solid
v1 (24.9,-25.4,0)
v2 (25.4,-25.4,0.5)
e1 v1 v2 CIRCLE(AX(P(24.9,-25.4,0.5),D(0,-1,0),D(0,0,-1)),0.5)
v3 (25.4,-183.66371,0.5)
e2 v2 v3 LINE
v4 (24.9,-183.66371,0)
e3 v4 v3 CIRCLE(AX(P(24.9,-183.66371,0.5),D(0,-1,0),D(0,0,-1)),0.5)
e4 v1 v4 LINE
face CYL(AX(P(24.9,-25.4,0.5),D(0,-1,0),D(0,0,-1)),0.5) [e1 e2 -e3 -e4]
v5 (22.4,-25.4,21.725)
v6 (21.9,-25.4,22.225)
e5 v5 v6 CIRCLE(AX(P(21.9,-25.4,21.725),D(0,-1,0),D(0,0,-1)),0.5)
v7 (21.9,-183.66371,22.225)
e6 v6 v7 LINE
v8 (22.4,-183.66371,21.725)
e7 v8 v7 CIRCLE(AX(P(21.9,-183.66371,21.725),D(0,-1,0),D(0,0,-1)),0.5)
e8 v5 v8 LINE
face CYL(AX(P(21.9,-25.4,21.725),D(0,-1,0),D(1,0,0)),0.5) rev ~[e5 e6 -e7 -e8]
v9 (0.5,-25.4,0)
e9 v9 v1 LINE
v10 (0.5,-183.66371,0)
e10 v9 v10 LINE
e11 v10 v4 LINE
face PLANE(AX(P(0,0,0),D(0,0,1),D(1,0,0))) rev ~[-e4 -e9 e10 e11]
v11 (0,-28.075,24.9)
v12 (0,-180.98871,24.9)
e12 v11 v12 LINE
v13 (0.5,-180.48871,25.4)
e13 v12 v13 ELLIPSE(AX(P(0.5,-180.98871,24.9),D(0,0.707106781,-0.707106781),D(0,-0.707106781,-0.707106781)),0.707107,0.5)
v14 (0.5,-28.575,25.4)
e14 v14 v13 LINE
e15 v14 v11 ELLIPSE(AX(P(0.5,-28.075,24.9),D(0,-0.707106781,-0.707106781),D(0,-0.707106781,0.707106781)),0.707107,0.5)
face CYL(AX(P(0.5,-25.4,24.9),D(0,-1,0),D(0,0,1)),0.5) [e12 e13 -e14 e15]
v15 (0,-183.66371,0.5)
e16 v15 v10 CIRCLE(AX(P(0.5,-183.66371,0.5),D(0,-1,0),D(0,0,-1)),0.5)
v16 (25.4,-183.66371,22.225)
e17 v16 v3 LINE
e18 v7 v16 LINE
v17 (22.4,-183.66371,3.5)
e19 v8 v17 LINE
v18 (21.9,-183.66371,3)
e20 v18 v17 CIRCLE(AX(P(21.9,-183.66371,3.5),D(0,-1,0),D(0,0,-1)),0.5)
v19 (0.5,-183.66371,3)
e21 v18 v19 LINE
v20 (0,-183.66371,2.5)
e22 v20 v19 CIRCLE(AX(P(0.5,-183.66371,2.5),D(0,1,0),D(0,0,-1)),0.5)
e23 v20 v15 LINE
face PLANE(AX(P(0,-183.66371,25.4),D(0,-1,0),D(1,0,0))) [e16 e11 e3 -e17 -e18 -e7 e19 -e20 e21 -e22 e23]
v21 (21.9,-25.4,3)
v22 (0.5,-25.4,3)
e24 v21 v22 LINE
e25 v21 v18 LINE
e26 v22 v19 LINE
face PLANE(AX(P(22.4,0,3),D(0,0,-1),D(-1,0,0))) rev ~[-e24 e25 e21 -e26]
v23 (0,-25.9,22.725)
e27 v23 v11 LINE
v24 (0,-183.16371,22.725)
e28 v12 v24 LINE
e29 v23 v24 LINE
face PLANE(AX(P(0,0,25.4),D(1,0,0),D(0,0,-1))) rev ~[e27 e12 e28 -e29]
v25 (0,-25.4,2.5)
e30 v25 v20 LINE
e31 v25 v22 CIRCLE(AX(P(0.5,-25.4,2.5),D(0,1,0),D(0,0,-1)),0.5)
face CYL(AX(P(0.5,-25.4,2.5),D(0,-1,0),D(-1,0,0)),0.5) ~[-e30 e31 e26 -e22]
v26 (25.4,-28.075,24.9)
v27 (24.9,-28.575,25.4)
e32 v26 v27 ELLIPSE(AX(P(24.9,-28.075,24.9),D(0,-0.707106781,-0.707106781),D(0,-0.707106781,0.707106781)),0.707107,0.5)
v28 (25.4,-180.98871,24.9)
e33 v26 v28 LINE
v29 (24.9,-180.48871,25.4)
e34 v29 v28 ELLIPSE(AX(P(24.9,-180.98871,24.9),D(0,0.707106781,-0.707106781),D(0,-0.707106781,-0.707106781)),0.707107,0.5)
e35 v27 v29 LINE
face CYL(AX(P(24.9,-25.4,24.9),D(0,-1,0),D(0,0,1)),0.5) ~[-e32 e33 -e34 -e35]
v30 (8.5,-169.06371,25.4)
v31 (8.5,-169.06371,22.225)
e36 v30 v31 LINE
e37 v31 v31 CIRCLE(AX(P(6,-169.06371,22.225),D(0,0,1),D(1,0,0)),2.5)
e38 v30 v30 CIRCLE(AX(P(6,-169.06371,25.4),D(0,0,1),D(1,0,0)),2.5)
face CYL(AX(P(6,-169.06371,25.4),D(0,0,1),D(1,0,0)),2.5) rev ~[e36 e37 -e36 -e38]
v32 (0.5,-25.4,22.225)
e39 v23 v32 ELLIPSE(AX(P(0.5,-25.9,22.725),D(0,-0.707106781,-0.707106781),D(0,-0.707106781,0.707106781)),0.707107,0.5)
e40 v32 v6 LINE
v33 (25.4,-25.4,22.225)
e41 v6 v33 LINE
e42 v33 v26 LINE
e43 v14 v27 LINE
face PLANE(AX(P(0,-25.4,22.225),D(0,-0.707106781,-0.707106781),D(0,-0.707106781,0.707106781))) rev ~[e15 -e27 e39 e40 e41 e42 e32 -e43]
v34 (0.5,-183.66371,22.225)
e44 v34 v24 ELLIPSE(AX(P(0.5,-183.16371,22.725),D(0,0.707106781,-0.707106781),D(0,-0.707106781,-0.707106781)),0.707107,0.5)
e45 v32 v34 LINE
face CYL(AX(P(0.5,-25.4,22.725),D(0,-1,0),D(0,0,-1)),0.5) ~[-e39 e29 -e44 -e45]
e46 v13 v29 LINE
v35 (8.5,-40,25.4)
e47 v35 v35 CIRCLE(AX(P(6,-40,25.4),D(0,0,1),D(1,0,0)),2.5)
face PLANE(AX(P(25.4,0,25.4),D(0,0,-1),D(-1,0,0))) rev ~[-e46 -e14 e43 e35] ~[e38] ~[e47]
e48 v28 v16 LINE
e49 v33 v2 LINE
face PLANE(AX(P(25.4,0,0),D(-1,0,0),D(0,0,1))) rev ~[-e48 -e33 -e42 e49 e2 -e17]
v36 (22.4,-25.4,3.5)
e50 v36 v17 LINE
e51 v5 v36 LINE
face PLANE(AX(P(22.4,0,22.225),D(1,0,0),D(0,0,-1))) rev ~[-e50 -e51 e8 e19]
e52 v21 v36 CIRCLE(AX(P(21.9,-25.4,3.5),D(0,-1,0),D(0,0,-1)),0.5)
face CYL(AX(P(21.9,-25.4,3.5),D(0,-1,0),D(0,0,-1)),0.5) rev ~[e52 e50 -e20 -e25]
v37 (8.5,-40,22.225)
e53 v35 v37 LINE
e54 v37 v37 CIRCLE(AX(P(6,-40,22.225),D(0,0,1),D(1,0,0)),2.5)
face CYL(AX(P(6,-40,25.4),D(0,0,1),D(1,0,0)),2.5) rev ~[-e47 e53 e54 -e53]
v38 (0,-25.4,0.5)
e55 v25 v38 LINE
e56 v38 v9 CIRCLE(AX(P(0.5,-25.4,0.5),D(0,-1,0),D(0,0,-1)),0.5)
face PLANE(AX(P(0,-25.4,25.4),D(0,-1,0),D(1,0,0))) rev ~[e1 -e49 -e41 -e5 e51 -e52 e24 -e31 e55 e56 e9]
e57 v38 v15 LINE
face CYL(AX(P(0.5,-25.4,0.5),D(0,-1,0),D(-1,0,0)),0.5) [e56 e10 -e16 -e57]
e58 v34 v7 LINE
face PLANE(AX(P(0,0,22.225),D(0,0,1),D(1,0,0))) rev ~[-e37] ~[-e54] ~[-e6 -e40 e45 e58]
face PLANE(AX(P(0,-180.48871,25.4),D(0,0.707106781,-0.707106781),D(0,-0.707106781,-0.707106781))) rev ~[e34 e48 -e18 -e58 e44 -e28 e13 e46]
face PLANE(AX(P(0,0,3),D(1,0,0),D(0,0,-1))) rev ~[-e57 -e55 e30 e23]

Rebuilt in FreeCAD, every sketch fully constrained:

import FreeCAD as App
import Part
import Sketcher
Q = App.Units.Quantity


def edges_at(feature, points):
    """Names of the edges that pass closest to the given points."""
    edges = feature.Shape.Edges
    near = lambda p: min(range(len(edges)), key=lambda i: edges[i].distToShape(Part.Vertex(*p))[0])
    return sorted({f"Edge{near(p) + 1}" for p in points})


def add_polygon(sketch, points):
    """Adds a closed chain of lines whose ends are joined by coincident constraints."""
    first, n = sketch.GeometryCount, len(points)
    for a, b in zip(points, points[1:] + points[:1]):
        sketch.addGeometry(Part.LineSegment(App.Vector(*a, 0), App.Vector(*b, 0)), False)
    for i in range(n):
        sketch.addConstraint(Sketcher.Constraint("Coincident", first + i, 2, first + (i + 1) % n, 1))

doc = App.newDocument("Part")
body = doc.addObject("PartDesign::Body", "Body")

sketch1 = body.newObject("Sketcher::SketchObject", "Sketch")
sketch1.AttachmentSupport = (doc.getObject("XZ_Plane"), [""])
sketch1.MapMode = "FlatFace"
add_polygon(sketch1, [(0, 3), (0, 0), (25.4, 0), (25.4, 25.4), (0, 25.4), (0, 22.2), (22.4, 22.2), (22.4, 3)])
sketch1.addConstraint(Sketcher.Constraint("Vertical", 0))
sketch1.addConstraint(Sketcher.Constraint("Horizontal", 1))
sketch1.addConstraint(Sketcher.Constraint("Vertical", 2))
sketch1.addConstraint(Sketcher.Constraint("Horizontal", 3))
sketch1.addConstraint(Sketcher.Constraint("Vertical", 4))
sketch1.addConstraint(Sketcher.Constraint("Horizontal", 5))
sketch1.addConstraint(Sketcher.Constraint("Vertical", 6))
sketch1.addConstraint(Sketcher.Constraint("Horizontal", 7))
sketch1.addConstraint(Sketcher.Constraint("Coincident", 0, 2, -1, 1))
sketch1.addConstraint(Sketcher.Constraint("PointOnObject", 3, 2, -2))
sketch1.addConstraint(Sketcher.Constraint("Equal", 3, 2))
sketch1.addConstraint(Sketcher.Constraint("DistanceY", 0, 2, 0, 1, Q("3 mm")))
sketch1.addConstraint(Sketcher.Constraint("DistanceX", 1, 1, 1, 2, Q("25.4 mm")))
sketch1.addConstraint(Sketcher.Constraint("DistanceX", 5, 1, 5, 2, Q("22.4 mm")))
sketch1.addConstraint(Sketcher.Constraint("DistanceY", 4, 2, 4, 1, Q("3.175 mm")))
pad1 = body.newObject("PartDesign::Pad", "Pad")
pad1.Profile = sketch1
pad1.Length = 209.06371

sketch2 = body.newObject("Sketcher::SketchObject", "Sketch001")
sketch2.AttachmentSupport = (doc.getObject("XY_Plane"), [""])
sketch2.MapMode = "FlatFace"
sketch2.AttachmentOffset = App.Placement(App.Vector(0, 0, 25.4), App.Rotation())
sketch2.addGeometry(Part.Circle(App.Vector(6, -40, 0), App.Vector(0, 0, 1), 2.5), False)
sketch2.addGeometry(Part.Circle(App.Vector(6, -169.1, 0), App.Vector(0, 0, 1), 2.5), False)
sketch2.addConstraint(Sketcher.Constraint("Equal", 0, 1))
sketch2.addConstraint(Sketcher.Constraint("Vertical", 0, 3, 1, 3))
sketch2.addConstraint(Sketcher.Constraint("Diameter", 0, Q("5 mm")))
sketch2.addConstraint(Sketcher.Constraint("DistanceX", -1, 1, 0, 3, Q("6 mm")))
sketch2.addConstraint(Sketcher.Constraint("DistanceY", 0, 3, -1, 1, Q("40 mm")))
sketch2.addConstraint(Sketcher.Constraint("DistanceY", 1, 3, -1, 1, Q("169.06371 mm")))
pocket1 = body.newObject("PartDesign::Pocket", "Pocket")
pocket1.Profile = sketch2
pocket1.Length = 5

sketch3 = body.newObject("Sketcher::SketchObject", "Sketch002")
sketch3.AttachmentSupport = (doc.getObject("XY_Plane"), [""])
sketch3.MapMode = "FlatFace"
sketch3.AttachmentOffset = App.Placement(App.Vector(0, 0, 25.4), App.Rotation())
add_polygon(sketch3, [(0, 0), (0, -25), (25, -25), (25, 0)])
add_polygon(sketch3, [(0, -184), (0, -209), (25, -209), (25, -184)])
sketch3.addConstraint(Sketcher.Constraint("Vertical", 0))
sketch3.addConstraint(Sketcher.Constraint("Horizontal", 1))
sketch3.addConstraint(Sketcher.Constraint("Vertical", 2))
sketch3.addConstraint(Sketcher.Constraint("Horizontal", 3))
sketch3.addConstraint(Sketcher.Constraint("Vertical", 4))
sketch3.addConstraint(Sketcher.Constraint("Horizontal", 5))
sketch3.addConstraint(Sketcher.Constraint("Vertical", 6))
sketch3.addConstraint(Sketcher.Constraint("Horizontal", 7))
sketch3.addConstraint(Sketcher.Constraint("Coincident", 3, 2, -1, 1))
sketch3.addConstraint(Sketcher.Constraint("PointOnObject", 4, 2, -2))
sketch3.addConstraint(Sketcher.Constraint("Vertical", 2, 2, 5, 2))
sketch3.addConstraint(Sketcher.Constraint("Equal", 7, 0))
sketch3.addConstraint(Sketcher.Constraint("Equal", 2, 4))
sketch3.addConstraint(Sketcher.Constraint("DistanceX", 1, 1, 1, 2, Q("25.4 mm")))
sketch3.addConstraint(Sketcher.Constraint("DistanceY", 4, 2, -1, 1, Q("209.06371 mm")))
pocket2 = body.newObject("PartDesign::Pocket", "Pocket001")
pocket2.Profile = sketch3
pocket2.Type = "ThroughAll"
doc.recompute()

fillet = body.newObject("PartDesign::Fillet", "Fillet")
fillet.Base = (pocket2, edges_at(pocket2, [
    (0, -104.532, 3),
    (0, -104.532, 0),
    (22.4, -104.532, 3),
    (0, -104.532, 22.225),
    (0, -104.532, 25.4),
    (22.4, -104.532, 22.225),
    (25.4, -104.532, 25.4),
    (25.4, -104.532, 0),
]))
fillet.Radius = 0.5

sketch4 = body.newObject("Sketcher::SketchObject", "Sketch003")
sketch4.AttachmentSupport = (doc.getObject("YZ_Plane"), [""])
sketch4.MapMode = "FlatFace"
add_polygon(sketch4, [(-25.4, 25.4), (-25.4, 22.2), (-28.6, 25.4)])
add_polygon(sketch4, [(-180.5, 25.4), (-183.7, 22.2), (-183.7, 25.4)])
sketch4.addConstraint(Sketcher.Constraint("Vertical", 0))
sketch4.addConstraint(Sketcher.Constraint("Horizontal", 2))
sketch4.addConstraint(Sketcher.Constraint("Vertical", 4))
sketch4.addConstraint(Sketcher.Constraint("Horizontal", 5))
sketch4.addConstraint(Sketcher.Constraint("Perpendicular", 1, 3))
sketch4.addConstraint(Sketcher.Constraint("Horizontal", 0, 2, 3, 2))
sketch4.addConstraint(Sketcher.Constraint("Horizontal", 2, 2, 4, 2))
sketch4.addConstraint(Sketcher.Constraint("Equal", 2, 5))
sketch4.addConstraint(Sketcher.Constraint("DistanceX", 0, 2, -1, 1, Q("25.4 mm")))
sketch4.addConstraint(Sketcher.Constraint("DistanceY", -1, 1, 1, 2, Q("25.4 mm")))
sketch4.addConstraint(Sketcher.Constraint("DistanceX", 2, 1, 2, 2, Q("3.175 mm")))
sketch4.addConstraint(Sketcher.Constraint("DistanceX", 3, 2, -1, 1, Q("183.66371 mm")))
pocket3 = body.newObject("PartDesign::Pocket", "Pocket002")
pocket3.Profile = sketch4
pocket3.Type = "ThroughAll"
pocket3.Reversed = True

doc.recompute()
